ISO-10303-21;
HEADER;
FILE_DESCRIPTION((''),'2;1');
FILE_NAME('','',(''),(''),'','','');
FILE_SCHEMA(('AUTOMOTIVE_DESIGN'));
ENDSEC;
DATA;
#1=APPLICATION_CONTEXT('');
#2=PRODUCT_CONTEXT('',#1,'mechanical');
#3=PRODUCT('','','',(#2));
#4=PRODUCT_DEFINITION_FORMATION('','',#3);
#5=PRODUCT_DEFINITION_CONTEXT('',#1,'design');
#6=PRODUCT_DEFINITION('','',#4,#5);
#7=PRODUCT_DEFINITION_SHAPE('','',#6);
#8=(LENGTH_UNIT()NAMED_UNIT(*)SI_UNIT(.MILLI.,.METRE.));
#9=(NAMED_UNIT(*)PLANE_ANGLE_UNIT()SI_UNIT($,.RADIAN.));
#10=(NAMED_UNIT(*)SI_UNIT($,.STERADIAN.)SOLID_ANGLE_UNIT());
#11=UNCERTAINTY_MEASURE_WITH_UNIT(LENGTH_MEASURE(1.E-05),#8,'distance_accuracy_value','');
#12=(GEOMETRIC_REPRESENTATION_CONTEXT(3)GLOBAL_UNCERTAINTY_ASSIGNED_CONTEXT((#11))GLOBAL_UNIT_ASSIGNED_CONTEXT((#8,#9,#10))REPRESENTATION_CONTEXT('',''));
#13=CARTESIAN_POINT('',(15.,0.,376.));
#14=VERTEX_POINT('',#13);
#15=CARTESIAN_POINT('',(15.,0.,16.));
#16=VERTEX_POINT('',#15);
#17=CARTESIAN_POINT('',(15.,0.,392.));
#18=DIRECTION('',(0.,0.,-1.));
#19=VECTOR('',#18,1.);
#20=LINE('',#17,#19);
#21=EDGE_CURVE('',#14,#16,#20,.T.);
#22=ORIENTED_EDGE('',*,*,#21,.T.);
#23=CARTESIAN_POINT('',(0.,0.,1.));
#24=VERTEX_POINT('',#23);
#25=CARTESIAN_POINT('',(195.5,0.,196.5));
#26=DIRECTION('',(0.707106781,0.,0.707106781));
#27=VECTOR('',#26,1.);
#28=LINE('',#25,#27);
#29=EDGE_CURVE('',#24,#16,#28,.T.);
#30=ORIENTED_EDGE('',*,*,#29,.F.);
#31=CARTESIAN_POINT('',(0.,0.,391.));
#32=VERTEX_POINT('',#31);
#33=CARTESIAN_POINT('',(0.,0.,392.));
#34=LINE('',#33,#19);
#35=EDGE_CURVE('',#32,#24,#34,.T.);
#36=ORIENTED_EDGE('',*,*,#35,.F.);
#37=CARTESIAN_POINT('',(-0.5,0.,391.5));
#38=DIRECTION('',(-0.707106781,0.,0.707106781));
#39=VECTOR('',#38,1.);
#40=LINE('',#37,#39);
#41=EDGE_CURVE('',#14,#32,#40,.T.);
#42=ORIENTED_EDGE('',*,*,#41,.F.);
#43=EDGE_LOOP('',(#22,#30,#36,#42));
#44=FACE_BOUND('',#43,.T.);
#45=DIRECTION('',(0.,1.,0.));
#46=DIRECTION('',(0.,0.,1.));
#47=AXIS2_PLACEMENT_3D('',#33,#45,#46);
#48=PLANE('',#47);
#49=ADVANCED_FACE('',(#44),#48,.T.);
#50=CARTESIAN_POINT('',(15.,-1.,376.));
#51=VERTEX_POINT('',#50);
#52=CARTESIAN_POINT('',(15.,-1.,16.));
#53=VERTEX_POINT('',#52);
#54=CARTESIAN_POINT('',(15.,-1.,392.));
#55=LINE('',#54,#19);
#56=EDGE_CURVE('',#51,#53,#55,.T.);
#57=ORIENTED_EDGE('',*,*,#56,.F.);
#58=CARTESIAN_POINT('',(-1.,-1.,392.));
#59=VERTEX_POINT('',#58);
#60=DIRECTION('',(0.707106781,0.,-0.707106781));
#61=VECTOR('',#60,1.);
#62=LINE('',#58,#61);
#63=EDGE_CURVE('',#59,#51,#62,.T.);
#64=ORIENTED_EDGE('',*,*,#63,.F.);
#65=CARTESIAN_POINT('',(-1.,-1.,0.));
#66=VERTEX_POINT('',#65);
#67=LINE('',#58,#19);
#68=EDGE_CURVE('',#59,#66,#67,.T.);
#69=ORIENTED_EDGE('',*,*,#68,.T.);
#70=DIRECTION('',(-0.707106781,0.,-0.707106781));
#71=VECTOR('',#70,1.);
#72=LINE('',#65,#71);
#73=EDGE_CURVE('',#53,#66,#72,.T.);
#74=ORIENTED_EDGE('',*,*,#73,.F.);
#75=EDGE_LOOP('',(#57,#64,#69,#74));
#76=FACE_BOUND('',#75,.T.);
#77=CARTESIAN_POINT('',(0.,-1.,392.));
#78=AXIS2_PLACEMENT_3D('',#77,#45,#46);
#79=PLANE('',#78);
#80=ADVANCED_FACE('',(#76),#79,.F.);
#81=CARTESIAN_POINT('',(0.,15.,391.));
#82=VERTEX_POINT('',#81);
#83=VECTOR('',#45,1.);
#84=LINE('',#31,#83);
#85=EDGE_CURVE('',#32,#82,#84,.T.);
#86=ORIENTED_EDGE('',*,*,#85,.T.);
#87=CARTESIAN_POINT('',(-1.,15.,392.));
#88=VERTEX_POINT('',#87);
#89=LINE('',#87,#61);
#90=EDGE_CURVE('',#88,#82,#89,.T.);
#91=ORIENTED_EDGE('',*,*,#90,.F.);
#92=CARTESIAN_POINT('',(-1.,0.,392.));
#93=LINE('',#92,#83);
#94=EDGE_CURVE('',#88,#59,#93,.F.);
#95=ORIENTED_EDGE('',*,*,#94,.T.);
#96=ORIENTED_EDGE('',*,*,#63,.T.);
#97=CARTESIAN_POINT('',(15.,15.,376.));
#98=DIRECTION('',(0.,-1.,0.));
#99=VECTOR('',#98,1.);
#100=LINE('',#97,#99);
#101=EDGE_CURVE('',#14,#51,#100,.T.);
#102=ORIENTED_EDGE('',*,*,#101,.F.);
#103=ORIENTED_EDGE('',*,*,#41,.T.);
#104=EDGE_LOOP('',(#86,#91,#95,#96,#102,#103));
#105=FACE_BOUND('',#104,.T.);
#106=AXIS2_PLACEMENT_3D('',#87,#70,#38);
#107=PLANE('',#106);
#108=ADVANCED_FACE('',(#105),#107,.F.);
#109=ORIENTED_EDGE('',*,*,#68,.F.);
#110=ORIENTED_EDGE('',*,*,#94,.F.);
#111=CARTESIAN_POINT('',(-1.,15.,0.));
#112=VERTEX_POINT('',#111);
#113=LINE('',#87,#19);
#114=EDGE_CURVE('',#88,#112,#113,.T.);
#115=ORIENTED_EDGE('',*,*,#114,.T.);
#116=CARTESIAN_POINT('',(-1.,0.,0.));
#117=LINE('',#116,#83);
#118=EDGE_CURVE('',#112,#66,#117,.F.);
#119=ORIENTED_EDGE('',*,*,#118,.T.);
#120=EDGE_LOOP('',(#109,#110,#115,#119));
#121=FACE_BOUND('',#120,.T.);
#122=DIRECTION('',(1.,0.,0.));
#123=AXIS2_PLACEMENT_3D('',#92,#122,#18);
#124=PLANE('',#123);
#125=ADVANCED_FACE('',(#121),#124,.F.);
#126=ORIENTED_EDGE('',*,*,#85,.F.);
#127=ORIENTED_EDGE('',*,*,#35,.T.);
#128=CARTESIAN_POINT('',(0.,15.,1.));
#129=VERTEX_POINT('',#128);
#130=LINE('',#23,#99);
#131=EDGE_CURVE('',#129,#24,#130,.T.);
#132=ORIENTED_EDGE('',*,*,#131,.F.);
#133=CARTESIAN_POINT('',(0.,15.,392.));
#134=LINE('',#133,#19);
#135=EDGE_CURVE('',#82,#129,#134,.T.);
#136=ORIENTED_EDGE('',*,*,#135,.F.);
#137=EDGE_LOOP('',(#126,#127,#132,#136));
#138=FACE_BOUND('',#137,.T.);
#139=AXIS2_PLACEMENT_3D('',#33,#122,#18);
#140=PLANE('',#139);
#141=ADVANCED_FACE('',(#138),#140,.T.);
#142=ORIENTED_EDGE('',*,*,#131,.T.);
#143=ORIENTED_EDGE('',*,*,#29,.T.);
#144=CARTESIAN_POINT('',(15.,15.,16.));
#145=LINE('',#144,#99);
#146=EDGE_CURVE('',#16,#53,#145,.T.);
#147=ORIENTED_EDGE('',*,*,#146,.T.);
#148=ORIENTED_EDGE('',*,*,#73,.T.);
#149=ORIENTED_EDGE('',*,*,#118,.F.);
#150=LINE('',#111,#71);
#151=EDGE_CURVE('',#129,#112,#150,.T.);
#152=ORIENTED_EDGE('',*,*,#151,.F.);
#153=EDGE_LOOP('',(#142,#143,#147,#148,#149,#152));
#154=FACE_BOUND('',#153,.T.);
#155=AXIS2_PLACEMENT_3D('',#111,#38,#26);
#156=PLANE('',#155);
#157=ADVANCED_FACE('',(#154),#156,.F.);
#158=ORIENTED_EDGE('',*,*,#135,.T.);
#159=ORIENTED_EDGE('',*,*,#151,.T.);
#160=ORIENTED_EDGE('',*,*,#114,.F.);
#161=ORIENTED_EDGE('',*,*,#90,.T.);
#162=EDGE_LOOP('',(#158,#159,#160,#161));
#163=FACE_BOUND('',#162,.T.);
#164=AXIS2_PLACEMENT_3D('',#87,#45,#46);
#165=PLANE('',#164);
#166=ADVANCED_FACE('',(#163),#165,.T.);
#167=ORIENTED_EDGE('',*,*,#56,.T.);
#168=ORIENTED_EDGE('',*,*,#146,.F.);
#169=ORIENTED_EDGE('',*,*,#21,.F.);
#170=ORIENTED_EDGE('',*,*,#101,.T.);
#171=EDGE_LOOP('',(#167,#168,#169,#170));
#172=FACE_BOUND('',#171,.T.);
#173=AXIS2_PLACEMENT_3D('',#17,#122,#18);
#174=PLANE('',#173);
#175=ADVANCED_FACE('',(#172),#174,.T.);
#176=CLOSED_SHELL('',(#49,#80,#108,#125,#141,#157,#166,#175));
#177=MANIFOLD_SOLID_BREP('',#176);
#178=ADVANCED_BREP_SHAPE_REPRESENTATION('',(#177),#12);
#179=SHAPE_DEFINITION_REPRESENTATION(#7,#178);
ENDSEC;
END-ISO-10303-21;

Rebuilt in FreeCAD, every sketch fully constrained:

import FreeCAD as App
import Part
import Sketcher

V = App.Vector

doc = App.newDocument("Part")
body = doc.addObject("PartDesign::Body", "Body")

sketch1 = doc.addObject("Sketcher::SketchObject", "Sketch")
body.addObject(sketch1)
sketch1.AttachmentSupport = (doc.XY_Plane, [""])
sketch1.MapMode = "FlatFace"
sketch1.addGeometry(Part.LineSegment(V(15, 0, 0), V(0, 0, 0)), False)
sketch1.addGeometry(Part.LineSegment(V(0, 0, 0), V(0, 15, 0)), False)
sketch1.addGeometry(Part.LineSegment(V(0, 15, 0), V(-1, 15, 0)), False)
sketch1.addGeometry(Part.LineSegment(V(-1, 15, 0), V(-1, -1, 0)), False)
sketch1.addGeometry(Part.LineSegment(V(-1, -1, 0), V(15, -1, 0)), False)
sketch1.addGeometry(Part.LineSegment(V(15, -1, 0), V(15, 0, 0)), False)
sketch1.addConstraint(Sketcher.Constraint("Coincident", 0, 2, 1, 1))
sketch1.addConstraint(Sketcher.Constraint("Coincident", 1, 2, 2, 1))
sketch1.addConstraint(Sketcher.Constraint("Coincident", 2, 2, 3, 1))
sketch1.addConstraint(Sketcher.Constraint("Coincident", 3, 2, 4, 1))
sketch1.addConstraint(Sketcher.Constraint("Coincident", 4, 2, 5, 1))
sketch1.addConstraint(Sketcher.Constraint("Coincident", 5, 2, 0, 1))
sketch1.addConstraint(Sketcher.Constraint("Horizontal", 0))
sketch1.addConstraint(Sketcher.Constraint("Vertical", 1))
sketch1.addConstraint(Sketcher.Constraint("Horizontal", 2))
sketch1.addConstraint(Sketcher.Constraint("Vertical", 3))
sketch1.addConstraint(Sketcher.Constraint("Horizontal", 4))
sketch1.addConstraint(Sketcher.Constraint("Vertical", 5))
sketch1.addConstraint(Sketcher.Constraint("Coincident", 0, 2, -1, 1))
sketch1.addConstraint(Sketcher.Constraint("Equal", 0, 1))
sketch1.addConstraint(Sketcher.Constraint("Equal", 4, 3))
sketch1.addConstraint(Sketcher.Constraint("DistanceX", 0, 2, 0, 1, 15.0))
sketch1.addConstraint(Sketcher.Constraint("DistanceX", 2, 2, 2, 1, 1.0))
pad1 = doc.addObject("PartDesign::Pad", "Pad")
body.addObject(pad1)
pad1.Profile = sketch1
pad1.Length = 392

sketch2 = doc.addObject("Sketcher::SketchObject", "Sketch001")
body.addObject(sketch2)
sketch2.AttachmentSupport = (doc.XZ_Plane, [""])
sketch2.MapMode = "FlatFace"
sketch2.AttachmentOffset = App.Placement(V(0, 0, 1), App.Rotation())
sketch2.addGeometry(Part.LineSegment(V(-1, 392, 0), V(15, 376, 0)), False)
sketch2.addGeometry(Part.LineSegment(V(15, 376, 0), V(15, 392, 0)), False)
sketch2.addGeometry(Part.LineSegment(V(15, 392, 0), V(-1, 392, 0)), False)
sketch2.addGeometry(Part.LineSegment(V(15, 0, 0), V(15, 16, 0)), False)
sketch2.addGeometry(Part.LineSegment(V(15, 16, 0), V(-1, 0, 0)), False)
sketch2.addGeometry(Part.LineSegment(V(-1, 0, 0), V(15, 0, 0)), False)
sketch2.addConstraint(Sketcher.Constraint("Coincident", 0, 2, 1, 1))
sketch2.addConstraint(Sketcher.Constraint("Coincident", 1, 2, 2, 1))
sketch2.addConstraint(Sketcher.Constraint("Coincident", 2, 2, 0, 1))
sketch2.addConstraint(Sketcher.Constraint("Coincident", 3, 2, 4, 1))
sketch2.addConstraint(Sketcher.Constraint("Coincident", 4, 2, 5, 1))
sketch2.addConstraint(Sketcher.Constraint("Coincident", 5, 2, 3, 1))
sketch2.addConstraint(Sketcher.Constraint("Vertical", 1))
sketch2.addConstraint(Sketcher.Constraint("Horizontal", 2))
sketch2.addConstraint(Sketcher.Constraint("Vertical", 3))
sketch2.addConstraint(Sketcher.Constraint("Horizontal", 5))
sketch2.addConstraint(Sketcher.Constraint("PointOnObject", 4, 2, -1))
sketch2.addConstraint(Sketcher.Constraint("Perpendicular", 0, 4))
sketch2.addConstraint(Sketcher.Constraint("Vertical", 1, 2, 3, 2))
sketch2.addConstraint(Sketcher.Constraint("Vertical", 2, 2, 4, 2))
sketch2.addConstraint(Sketcher.Constraint("Equal", 5, 1))
sketch2.addConstraint(Sketcher.Constraint("DistanceX", 2, 2, 2, 1, 16.0))
sketch2.addConstraint(Sketcher.Constraint("DistanceX", -1, 1, 0, 2, 15.0))
sketch2.addConstraint(Sketcher.Constraint("DistanceY", -1, 1, 0, 2, 376.0))
pocket1 = doc.addObject("PartDesign::Pocket", "Pocket")
body.addObject(pocket1)
pocket1.Profile = sketch2
pocket1.Type = "ThroughAll"

doc.recompute()
